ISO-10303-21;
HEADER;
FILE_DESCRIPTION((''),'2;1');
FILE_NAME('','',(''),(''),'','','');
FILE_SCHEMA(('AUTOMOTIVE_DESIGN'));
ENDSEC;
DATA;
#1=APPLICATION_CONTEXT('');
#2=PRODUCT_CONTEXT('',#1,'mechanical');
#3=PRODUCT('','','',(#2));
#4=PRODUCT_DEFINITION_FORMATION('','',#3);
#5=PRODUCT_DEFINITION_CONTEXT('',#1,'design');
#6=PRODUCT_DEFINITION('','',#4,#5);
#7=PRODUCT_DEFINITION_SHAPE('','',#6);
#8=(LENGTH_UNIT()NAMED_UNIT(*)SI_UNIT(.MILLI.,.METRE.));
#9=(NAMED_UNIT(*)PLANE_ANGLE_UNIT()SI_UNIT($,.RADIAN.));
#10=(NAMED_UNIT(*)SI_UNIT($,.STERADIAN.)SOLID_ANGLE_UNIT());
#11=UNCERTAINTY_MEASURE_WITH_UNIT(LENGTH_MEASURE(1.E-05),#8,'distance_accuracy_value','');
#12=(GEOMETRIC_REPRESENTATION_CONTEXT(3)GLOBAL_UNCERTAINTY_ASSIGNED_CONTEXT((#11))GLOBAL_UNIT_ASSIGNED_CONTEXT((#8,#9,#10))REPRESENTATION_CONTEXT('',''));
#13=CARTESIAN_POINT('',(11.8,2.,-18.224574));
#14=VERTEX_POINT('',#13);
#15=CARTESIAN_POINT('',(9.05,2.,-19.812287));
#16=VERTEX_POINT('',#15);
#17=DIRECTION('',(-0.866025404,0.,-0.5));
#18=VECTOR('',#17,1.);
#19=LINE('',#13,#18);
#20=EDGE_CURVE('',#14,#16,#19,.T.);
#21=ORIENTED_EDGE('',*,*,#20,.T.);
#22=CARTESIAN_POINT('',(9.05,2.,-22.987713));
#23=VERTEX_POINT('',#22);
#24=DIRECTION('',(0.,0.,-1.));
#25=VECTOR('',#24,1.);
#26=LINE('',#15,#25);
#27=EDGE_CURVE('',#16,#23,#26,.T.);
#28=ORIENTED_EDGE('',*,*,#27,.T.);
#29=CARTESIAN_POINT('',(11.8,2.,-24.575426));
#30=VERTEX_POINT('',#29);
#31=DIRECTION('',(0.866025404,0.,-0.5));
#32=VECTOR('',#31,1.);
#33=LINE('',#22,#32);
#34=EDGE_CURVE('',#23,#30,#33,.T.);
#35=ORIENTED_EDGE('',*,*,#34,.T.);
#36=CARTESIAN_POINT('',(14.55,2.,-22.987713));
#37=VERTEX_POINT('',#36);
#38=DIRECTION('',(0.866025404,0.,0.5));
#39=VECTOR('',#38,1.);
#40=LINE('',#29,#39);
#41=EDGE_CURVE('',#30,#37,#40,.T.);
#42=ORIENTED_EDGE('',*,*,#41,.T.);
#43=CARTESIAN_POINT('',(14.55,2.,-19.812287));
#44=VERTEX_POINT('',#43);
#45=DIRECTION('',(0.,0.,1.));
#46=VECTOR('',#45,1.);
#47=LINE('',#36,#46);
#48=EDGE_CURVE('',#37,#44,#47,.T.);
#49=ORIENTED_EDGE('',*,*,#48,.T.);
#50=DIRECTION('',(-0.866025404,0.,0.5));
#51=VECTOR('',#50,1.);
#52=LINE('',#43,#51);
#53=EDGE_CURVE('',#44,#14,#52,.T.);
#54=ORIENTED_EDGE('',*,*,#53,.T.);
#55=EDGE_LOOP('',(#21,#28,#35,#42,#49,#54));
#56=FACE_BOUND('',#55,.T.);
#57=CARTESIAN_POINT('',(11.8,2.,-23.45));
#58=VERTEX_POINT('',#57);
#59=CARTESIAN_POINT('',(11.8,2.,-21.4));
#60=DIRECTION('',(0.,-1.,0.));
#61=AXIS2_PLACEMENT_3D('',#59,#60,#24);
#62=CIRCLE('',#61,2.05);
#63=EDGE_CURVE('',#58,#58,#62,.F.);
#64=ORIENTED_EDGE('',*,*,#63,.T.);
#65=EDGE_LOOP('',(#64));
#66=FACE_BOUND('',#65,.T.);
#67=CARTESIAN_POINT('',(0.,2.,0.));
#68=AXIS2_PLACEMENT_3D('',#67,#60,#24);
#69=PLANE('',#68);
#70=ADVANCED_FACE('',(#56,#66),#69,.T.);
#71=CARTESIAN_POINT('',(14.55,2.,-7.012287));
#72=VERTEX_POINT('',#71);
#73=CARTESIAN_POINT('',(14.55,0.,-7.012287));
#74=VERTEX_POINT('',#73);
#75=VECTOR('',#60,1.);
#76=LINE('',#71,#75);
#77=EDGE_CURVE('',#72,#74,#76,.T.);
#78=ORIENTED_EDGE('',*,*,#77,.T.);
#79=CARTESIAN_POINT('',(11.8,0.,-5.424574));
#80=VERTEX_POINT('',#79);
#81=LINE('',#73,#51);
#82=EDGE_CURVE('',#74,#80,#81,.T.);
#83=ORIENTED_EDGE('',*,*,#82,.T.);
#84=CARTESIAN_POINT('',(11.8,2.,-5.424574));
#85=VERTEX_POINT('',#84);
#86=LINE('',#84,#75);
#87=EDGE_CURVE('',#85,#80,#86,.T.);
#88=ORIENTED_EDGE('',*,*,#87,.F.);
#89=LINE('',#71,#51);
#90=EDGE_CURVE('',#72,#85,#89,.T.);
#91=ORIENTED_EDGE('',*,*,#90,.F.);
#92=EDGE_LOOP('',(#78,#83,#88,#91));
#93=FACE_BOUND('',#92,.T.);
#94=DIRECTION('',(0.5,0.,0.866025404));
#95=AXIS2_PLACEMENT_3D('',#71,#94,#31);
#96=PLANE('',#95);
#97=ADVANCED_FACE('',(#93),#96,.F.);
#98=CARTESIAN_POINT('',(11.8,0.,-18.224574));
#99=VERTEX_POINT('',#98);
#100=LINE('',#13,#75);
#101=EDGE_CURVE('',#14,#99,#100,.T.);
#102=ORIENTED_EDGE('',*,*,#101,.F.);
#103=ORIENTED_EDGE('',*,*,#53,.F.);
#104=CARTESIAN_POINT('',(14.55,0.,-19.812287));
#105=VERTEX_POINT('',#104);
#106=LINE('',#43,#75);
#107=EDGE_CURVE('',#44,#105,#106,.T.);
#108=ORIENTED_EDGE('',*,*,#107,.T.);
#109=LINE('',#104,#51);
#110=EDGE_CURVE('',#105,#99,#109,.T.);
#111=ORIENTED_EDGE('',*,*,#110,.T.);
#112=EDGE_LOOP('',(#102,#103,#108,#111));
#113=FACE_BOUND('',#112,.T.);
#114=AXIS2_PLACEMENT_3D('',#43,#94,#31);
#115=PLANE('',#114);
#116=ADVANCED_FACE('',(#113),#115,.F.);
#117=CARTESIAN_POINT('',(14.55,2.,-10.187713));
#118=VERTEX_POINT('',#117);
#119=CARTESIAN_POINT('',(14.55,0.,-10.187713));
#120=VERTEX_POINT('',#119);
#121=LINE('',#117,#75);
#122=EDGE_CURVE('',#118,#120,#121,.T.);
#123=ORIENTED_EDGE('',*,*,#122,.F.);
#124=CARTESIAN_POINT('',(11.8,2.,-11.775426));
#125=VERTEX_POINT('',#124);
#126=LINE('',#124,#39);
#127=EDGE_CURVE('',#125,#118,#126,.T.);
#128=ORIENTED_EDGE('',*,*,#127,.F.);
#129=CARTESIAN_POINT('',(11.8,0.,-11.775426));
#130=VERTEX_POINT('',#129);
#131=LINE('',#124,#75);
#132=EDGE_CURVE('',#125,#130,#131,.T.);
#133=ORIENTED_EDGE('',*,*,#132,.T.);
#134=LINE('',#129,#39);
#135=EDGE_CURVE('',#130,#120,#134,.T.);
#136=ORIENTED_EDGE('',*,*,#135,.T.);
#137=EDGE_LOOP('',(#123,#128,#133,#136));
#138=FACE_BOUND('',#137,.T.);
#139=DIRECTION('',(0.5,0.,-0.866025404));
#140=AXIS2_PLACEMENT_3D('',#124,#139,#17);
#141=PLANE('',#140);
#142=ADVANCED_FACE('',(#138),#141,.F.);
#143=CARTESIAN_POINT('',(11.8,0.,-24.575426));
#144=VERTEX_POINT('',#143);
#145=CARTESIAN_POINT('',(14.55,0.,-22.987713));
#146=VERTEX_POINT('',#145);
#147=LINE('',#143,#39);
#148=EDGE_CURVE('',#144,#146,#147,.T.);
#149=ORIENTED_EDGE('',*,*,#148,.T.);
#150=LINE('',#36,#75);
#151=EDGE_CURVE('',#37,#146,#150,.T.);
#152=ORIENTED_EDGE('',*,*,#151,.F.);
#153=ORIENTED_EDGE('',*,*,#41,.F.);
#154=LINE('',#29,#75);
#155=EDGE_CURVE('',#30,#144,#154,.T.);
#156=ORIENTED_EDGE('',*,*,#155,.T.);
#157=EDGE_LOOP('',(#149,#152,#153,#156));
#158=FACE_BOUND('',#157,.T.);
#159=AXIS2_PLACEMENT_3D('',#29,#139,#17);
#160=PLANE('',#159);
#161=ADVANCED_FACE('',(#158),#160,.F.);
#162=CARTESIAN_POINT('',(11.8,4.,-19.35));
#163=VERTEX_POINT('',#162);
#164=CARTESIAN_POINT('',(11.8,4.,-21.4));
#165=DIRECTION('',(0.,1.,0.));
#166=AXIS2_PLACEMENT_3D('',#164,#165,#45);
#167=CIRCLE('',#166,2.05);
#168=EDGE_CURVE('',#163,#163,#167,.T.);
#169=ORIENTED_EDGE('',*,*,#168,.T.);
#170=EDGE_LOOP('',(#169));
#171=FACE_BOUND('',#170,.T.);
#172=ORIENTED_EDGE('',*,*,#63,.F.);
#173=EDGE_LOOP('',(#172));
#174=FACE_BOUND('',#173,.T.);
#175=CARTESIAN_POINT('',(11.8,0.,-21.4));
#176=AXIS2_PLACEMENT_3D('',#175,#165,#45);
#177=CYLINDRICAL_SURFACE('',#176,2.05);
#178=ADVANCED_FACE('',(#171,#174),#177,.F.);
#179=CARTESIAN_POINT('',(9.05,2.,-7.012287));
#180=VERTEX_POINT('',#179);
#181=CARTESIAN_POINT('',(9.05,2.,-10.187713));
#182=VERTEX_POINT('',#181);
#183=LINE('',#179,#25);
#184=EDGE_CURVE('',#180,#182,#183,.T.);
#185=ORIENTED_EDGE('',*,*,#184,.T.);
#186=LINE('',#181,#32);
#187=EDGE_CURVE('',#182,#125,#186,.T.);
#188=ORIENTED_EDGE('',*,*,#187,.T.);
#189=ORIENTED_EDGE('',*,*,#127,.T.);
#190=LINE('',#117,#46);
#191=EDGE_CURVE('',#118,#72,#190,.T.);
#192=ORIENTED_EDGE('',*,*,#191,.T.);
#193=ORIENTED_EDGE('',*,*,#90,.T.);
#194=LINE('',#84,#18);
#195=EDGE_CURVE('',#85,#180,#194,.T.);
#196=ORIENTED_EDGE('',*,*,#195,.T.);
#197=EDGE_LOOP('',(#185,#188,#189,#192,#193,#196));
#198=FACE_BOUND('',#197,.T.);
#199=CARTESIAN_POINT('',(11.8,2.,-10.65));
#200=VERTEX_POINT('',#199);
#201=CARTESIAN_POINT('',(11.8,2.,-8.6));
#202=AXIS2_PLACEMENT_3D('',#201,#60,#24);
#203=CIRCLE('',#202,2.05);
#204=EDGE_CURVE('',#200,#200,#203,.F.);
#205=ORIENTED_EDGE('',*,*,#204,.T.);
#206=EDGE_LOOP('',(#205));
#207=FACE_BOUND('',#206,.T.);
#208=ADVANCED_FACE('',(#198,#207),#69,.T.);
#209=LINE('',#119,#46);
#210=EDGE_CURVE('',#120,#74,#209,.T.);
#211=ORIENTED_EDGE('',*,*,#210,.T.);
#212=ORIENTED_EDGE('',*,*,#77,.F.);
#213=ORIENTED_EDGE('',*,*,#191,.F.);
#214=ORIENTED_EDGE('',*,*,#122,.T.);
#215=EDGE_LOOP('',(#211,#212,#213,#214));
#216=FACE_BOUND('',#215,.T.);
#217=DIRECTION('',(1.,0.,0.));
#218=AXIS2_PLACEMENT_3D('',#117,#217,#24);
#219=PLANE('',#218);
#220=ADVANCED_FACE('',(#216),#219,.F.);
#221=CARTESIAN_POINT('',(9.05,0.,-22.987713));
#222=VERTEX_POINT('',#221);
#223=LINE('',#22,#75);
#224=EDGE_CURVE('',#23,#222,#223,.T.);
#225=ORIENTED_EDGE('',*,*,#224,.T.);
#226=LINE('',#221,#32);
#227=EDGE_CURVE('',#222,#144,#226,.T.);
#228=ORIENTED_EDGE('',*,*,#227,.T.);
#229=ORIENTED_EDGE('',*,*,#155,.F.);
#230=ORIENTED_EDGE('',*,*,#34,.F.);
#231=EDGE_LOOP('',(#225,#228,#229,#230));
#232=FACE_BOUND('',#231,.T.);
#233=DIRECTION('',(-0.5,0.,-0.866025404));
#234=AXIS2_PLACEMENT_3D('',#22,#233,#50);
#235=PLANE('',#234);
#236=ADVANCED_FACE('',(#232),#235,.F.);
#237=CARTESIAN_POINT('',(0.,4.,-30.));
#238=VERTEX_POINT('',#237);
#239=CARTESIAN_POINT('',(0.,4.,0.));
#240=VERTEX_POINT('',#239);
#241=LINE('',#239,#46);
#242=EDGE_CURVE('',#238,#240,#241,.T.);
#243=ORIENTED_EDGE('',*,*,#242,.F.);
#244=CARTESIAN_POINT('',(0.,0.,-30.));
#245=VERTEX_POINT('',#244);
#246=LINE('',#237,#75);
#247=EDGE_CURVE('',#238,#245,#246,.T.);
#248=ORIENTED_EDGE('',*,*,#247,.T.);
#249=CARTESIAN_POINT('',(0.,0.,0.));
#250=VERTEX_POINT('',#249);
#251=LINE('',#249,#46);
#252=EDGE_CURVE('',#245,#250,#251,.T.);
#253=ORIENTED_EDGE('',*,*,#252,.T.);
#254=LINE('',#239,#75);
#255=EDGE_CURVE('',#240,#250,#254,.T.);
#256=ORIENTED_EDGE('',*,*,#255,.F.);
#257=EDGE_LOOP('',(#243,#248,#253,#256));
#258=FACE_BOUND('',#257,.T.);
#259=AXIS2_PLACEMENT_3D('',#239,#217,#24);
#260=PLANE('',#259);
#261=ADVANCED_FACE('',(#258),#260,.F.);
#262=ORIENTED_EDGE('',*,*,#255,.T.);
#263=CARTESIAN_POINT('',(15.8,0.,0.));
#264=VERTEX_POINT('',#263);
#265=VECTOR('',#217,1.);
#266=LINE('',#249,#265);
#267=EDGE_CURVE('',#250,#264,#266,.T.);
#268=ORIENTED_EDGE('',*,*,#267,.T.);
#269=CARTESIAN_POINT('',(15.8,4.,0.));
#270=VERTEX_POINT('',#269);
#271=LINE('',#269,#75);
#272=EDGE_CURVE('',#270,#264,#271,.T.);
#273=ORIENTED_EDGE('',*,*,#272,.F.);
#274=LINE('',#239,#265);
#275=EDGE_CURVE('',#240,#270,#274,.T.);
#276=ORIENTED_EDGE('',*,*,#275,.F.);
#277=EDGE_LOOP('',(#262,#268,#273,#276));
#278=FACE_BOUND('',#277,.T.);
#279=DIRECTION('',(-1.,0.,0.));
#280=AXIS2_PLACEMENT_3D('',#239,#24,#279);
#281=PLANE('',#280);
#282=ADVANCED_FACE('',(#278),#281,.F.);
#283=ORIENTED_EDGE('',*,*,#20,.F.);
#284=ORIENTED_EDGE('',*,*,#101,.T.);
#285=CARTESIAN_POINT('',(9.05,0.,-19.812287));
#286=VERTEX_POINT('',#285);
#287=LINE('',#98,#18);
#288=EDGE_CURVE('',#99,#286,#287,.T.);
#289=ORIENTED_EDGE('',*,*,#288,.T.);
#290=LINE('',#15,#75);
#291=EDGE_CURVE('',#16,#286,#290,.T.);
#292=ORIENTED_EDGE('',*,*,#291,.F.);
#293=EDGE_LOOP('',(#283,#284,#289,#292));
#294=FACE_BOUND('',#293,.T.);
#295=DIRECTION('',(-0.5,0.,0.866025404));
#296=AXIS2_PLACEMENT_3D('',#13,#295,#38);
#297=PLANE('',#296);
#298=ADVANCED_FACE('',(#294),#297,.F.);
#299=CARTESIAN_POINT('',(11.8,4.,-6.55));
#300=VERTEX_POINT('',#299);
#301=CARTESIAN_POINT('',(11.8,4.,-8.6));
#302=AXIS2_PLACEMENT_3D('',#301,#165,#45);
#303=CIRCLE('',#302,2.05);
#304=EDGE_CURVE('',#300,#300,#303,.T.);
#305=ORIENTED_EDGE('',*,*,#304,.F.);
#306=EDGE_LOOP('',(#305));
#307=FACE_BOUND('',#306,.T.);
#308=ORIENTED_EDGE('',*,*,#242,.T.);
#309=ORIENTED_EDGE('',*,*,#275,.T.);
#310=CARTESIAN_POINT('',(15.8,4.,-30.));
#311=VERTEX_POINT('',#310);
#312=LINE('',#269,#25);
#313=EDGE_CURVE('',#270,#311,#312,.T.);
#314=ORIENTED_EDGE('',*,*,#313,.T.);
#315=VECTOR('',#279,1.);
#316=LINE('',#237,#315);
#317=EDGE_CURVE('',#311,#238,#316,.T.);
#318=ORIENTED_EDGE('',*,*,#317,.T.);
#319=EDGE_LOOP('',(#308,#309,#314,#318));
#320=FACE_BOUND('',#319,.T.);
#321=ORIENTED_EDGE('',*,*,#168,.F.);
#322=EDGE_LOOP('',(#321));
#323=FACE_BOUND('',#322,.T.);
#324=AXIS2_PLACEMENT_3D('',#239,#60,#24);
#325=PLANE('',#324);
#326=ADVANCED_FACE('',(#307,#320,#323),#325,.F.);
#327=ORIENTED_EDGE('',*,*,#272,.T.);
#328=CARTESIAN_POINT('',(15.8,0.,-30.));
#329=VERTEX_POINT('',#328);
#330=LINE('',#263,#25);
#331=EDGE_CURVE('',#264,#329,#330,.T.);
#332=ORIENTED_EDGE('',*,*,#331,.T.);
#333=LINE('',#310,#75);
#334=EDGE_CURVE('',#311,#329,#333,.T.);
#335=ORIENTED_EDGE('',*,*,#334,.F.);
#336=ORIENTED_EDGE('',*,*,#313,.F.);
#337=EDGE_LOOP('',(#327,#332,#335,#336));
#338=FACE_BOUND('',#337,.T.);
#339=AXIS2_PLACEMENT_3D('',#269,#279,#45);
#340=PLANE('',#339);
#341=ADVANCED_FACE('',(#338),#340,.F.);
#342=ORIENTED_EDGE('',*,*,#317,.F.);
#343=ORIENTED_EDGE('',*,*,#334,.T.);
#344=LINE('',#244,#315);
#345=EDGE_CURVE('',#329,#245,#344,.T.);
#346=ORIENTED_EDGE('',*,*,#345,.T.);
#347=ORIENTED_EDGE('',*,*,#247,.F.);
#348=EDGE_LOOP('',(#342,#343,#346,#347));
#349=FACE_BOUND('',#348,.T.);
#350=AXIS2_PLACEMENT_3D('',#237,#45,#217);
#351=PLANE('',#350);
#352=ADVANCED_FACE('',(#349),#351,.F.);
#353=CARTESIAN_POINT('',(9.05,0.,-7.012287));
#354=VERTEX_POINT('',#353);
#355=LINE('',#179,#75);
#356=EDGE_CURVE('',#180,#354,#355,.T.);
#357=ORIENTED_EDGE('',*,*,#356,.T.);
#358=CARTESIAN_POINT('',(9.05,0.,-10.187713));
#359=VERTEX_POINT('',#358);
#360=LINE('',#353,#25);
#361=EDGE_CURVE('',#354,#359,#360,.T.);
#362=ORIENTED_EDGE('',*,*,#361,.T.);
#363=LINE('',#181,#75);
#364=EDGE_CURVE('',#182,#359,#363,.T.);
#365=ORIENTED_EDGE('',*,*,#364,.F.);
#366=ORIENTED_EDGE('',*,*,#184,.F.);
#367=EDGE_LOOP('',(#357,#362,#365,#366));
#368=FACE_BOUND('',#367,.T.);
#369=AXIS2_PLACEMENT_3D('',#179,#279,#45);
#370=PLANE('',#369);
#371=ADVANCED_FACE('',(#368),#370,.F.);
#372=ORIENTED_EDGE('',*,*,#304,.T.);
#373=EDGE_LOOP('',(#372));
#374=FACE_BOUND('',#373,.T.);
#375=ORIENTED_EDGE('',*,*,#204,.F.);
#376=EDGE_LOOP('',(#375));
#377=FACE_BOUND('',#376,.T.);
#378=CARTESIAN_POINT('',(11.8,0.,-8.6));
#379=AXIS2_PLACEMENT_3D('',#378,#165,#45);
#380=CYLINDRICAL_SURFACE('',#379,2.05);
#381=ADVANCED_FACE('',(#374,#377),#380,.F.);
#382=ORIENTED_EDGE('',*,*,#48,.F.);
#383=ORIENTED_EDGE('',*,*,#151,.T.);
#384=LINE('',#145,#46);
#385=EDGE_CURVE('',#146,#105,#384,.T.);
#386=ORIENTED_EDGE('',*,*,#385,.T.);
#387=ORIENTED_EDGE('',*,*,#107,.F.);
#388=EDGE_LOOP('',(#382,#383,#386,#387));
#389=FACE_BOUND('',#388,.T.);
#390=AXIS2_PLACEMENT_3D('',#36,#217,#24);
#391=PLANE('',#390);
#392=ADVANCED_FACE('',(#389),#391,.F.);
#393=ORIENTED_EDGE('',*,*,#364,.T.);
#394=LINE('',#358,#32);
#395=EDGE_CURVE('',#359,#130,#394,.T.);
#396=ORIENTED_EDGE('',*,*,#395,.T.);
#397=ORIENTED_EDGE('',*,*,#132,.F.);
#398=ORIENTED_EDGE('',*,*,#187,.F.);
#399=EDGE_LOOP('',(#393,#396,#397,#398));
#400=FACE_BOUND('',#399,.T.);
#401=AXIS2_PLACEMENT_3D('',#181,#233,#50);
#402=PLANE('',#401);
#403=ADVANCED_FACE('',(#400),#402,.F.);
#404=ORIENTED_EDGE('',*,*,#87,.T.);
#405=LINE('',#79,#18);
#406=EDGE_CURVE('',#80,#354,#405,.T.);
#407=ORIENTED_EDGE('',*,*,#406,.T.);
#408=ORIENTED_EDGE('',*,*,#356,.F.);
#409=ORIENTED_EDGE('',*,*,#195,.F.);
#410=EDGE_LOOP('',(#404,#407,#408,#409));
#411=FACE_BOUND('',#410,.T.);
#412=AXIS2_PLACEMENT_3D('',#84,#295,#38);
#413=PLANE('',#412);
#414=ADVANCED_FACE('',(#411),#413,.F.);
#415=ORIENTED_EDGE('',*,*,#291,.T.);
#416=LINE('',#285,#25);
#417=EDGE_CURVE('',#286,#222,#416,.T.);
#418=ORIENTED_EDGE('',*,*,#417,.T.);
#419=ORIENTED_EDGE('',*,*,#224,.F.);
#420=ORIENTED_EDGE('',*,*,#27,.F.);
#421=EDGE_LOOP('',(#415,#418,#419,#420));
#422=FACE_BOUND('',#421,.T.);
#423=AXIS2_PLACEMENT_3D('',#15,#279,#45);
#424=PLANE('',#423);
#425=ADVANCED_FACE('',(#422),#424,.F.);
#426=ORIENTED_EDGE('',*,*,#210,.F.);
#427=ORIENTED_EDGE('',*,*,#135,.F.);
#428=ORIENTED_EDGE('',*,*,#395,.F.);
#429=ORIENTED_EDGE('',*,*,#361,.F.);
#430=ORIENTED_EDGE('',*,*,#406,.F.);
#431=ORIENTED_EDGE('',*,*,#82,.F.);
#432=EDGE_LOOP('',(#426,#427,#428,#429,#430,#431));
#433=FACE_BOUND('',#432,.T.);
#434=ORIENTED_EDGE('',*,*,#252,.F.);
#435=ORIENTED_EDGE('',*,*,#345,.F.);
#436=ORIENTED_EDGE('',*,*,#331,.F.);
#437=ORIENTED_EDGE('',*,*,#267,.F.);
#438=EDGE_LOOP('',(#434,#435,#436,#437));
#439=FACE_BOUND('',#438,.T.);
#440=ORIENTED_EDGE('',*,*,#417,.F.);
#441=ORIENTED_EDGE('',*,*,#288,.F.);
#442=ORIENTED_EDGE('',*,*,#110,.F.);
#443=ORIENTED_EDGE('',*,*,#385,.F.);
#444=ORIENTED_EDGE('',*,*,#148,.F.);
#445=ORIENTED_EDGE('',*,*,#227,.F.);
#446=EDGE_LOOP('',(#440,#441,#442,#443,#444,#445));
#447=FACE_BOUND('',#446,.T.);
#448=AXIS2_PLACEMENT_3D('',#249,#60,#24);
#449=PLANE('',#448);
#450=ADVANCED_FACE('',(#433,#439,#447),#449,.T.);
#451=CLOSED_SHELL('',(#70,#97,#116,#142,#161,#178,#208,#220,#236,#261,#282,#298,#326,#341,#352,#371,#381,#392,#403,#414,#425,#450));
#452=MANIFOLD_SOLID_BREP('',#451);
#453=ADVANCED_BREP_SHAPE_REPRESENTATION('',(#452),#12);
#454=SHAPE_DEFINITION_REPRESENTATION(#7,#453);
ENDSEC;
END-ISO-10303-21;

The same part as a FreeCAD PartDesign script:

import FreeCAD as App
import Part
import Sketcher

V = App.Vector
Q = App.Units.Quantity

doc = App.newDocument("Part")
body = doc.addObject("PartDesign::Body", "Body")

sketch1 = body.newObject("Sketcher::SketchObject", "Sketch")
sketch1.AttachmentSupport = (doc.getObject("XZ_Plane"), [""])
sketch1.MapMode = "FlatFace"
sketch1.addGeometry([
    Part.LineSegment(V(0, -30, 0), V(0, 0, 0)),
    Part.LineSegment(V(0, 0, 0), V(16, 0, 0)),
    Part.LineSegment(V(16, 0, 0), V(16, -30, 0)),
    Part.LineSegment(V(16, -30, 0), V(0, -30, 0)),
], False)
sketch1.addConstraint([
    Sketcher.Constraint("Coincident", 0, 2, 1, 1),
    Sketcher.Constraint("Coincident", 1, 2, 2, 1),
    Sketcher.Constraint("Coincident", 2, 2, 3, 1),
    Sketcher.Constraint("Coincident", 3, 2, 0, 1),
    Sketcher.Constraint("Vertical", 0),
    Sketcher.Constraint("Horizontal", 1),
    Sketcher.Constraint("Vertical", 2),
    Sketcher.Constraint("Horizontal", 3),
    Sketcher.Constraint("Coincident", 0, 2, -1, 1),
    Sketcher.Constraint("DistanceY", 0, 1, 0, 2, Q("30 mm")),
    Sketcher.Constraint("DistanceX", 1, 1, 1, 2, Q("15.8 mm")),
])
pad1 = body.newObject("PartDesign::Pad", "Pad")
pad1.Profile = sketch1
pad1.Length = 4
pad1.Reversed = True

sketch2 = body.newObject("Sketcher::SketchObject", "Sketch001")
sketch2.AttachmentSupport = (doc.getObject("XZ_Plane"), [""])
sketch2.MapMode = "FlatFace"
sketch2.AttachmentOffset = App.Placement(V(0, 0, -4), App.Rotation())
sketch2.addGeometry([
    Part.Circle(V(11.8, -21.4, 0), V(0, 0, 1), 2),
    Part.Circle(V(11.8, -8.6, 0), V(0, 0, 1), 2),
], False)
sketch2.addConstraint([
    Sketcher.Constraint("Equal", 0, 1),
    Sketcher.Constraint("Vertical", 0, 3, 1, 3),
    Sketcher.Constraint("Diameter", 0, Q("4.1 mm")),
    Sketcher.Constraint("DistanceX", -1, 1, 0, 3, Q("11.8 mm")),
    Sketcher.Constraint("DistanceY", 0, 3, -1, 1, Q("21.4 mm")),
    Sketcher.Constraint("DistanceY", 1, 3, -1, 1, Q("8.6 mm")),
])
pocket1 = body.newObject("PartDesign::Pocket", "Pocket")
pocket1.Profile = sketch2
pocket1.Type = "ThroughAll"
pocket1.Reversed = True

sketch3 = body.newObject("Sketcher::SketchObject", "Sketch002")
sketch3.AttachmentSupport = (doc.getObject("XZ_Plane"), [""])
sketch3.MapMode = "FlatFace"
sketch3.addGeometry([
    Part.LineSegment(V(14.6, -7, 0), V(11.8, -5.4, 0)),
    Part.LineSegment(V(11.8, -5.4, 0), V(9.1, -7, 0)),
    Part.LineSegment(V(9.1, -7, 0), V(9.1, -10.2, 0)),
    Part.LineSegment(V(9.1, -10.2, 0), V(11.8, -11.8, 0)),
    Part.LineSegment(V(11.8, -11.8, 0), V(14.6, -10.2, 0)),
    Part.LineSegment(V(14.6, -10.2, 0), V(14.6, -7, 0)),
    Part.LineSegment(V(9.1, -23, 0), V(11.8, -24.6, 0)),
    Part.LineSegment(V(11.8, -24.6, 0), V(14.6, -23, 0)),
    Part.LineSegment(V(14.6, -23, 0), V(14.6, -19.8, 0)),
    Part.LineSegment(V(14.6, -19.8, 0), V(11.8, -18.2, 0)),
    Part.LineSegment(V(11.8, -18.2, 0), V(9.1, -19.8, 0)),
    Part.LineSegment(V(9.1, -19.8, 0), V(9.1, -23, 0)),
], False)
sketch3.addConstraint([
    Sketcher.Constraint("Coincident", 0, 2, 1, 1),
    Sketcher.Constraint("Coincident", 1, 2, 2, 1),
    Sketcher.Constraint("Coincident", 2, 2, 3, 1),
    Sketcher.Constraint("Coincident", 3, 2, 4, 1),
    Sketcher.Constraint("Coincident", 4, 2, 5, 1),
    Sketcher.Constraint("Coincident", 5, 2, 0, 1),
    Sketcher.Constraint("Coincident", 6, 2, 7, 1),
    Sketcher.Constraint("Coincident", 7, 2, 8, 1),
    Sketcher.Constraint("Coincident", 8, 2, 9, 1),
    Sketcher.Constraint("Coincident", 9, 2, 10, 1),
    Sketcher.Constraint("Coincident", 10, 2, 11, 1),
    Sketcher.Constraint("Coincident", 11, 2, 6, 1),
    Sketcher.Constraint("Vertical", 2),
    Sketcher.Constraint("Vertical", 5),
    Sketcher.Constraint("Vertical", 8),
    Sketcher.Constraint("Vertical", 11),
    Sketcher.Constraint("Parallel", 0, 3),
    Sketcher.Constraint("Parallel", 1, 4),
    Sketcher.Constraint("Parallel", 3, 6),
    Sketcher.Constraint("Parallel", 4, 7),
    Sketcher.Constraint("Parallel", 6, 9),
    Sketcher.Constraint("Parallel", 7, 10),
    Sketcher.Constraint("Horizontal", 2, 2, 4, 2),
    Sketcher.Constraint("Horizontal", 1, 2, 5, 2),
    Sketcher.Constraint("Horizontal", 8, 2, 10, 2),
    Sketcher.Constraint("Horizontal", 7, 2, 11, 2),
    Sketcher.Constraint("Vertical", 0, 2, 3, 2),
    Sketcher.Constraint("Vertical", 3, 2, 6, 2),
    Sketcher.Constraint("Vertical", 5, 2, 7, 2),
    Sketcher.Constraint("Equal", 5, 8),
    Sketcher.Constraint("Angle", 0, Q("150 deg")),
    Sketcher.Constraint("DistanceX", -1, 1, 0, 2, Q("11.8 mm")),
    Sketcher.Constraint("DistanceX", 2, 2, 4, 2, Q("5.5 mm")),
    Sketcher.Constraint("DistanceY", 6, 2, 3, 2, Q("12.8 mm")),
    Sketcher.Constraint("DistanceY", 2, 2, 2, 1, Q("3.175426 mm")),
    Sketcher.Constraint("DistanceY", 0, 2, -1, 1, Q("5.424574 mm")),
])
pocket2 = body.newObject("PartDesign::Pocket", "Pocket001")
pocket2.Profile = sketch3
pocket2.Length = 2

doc.recompute()
